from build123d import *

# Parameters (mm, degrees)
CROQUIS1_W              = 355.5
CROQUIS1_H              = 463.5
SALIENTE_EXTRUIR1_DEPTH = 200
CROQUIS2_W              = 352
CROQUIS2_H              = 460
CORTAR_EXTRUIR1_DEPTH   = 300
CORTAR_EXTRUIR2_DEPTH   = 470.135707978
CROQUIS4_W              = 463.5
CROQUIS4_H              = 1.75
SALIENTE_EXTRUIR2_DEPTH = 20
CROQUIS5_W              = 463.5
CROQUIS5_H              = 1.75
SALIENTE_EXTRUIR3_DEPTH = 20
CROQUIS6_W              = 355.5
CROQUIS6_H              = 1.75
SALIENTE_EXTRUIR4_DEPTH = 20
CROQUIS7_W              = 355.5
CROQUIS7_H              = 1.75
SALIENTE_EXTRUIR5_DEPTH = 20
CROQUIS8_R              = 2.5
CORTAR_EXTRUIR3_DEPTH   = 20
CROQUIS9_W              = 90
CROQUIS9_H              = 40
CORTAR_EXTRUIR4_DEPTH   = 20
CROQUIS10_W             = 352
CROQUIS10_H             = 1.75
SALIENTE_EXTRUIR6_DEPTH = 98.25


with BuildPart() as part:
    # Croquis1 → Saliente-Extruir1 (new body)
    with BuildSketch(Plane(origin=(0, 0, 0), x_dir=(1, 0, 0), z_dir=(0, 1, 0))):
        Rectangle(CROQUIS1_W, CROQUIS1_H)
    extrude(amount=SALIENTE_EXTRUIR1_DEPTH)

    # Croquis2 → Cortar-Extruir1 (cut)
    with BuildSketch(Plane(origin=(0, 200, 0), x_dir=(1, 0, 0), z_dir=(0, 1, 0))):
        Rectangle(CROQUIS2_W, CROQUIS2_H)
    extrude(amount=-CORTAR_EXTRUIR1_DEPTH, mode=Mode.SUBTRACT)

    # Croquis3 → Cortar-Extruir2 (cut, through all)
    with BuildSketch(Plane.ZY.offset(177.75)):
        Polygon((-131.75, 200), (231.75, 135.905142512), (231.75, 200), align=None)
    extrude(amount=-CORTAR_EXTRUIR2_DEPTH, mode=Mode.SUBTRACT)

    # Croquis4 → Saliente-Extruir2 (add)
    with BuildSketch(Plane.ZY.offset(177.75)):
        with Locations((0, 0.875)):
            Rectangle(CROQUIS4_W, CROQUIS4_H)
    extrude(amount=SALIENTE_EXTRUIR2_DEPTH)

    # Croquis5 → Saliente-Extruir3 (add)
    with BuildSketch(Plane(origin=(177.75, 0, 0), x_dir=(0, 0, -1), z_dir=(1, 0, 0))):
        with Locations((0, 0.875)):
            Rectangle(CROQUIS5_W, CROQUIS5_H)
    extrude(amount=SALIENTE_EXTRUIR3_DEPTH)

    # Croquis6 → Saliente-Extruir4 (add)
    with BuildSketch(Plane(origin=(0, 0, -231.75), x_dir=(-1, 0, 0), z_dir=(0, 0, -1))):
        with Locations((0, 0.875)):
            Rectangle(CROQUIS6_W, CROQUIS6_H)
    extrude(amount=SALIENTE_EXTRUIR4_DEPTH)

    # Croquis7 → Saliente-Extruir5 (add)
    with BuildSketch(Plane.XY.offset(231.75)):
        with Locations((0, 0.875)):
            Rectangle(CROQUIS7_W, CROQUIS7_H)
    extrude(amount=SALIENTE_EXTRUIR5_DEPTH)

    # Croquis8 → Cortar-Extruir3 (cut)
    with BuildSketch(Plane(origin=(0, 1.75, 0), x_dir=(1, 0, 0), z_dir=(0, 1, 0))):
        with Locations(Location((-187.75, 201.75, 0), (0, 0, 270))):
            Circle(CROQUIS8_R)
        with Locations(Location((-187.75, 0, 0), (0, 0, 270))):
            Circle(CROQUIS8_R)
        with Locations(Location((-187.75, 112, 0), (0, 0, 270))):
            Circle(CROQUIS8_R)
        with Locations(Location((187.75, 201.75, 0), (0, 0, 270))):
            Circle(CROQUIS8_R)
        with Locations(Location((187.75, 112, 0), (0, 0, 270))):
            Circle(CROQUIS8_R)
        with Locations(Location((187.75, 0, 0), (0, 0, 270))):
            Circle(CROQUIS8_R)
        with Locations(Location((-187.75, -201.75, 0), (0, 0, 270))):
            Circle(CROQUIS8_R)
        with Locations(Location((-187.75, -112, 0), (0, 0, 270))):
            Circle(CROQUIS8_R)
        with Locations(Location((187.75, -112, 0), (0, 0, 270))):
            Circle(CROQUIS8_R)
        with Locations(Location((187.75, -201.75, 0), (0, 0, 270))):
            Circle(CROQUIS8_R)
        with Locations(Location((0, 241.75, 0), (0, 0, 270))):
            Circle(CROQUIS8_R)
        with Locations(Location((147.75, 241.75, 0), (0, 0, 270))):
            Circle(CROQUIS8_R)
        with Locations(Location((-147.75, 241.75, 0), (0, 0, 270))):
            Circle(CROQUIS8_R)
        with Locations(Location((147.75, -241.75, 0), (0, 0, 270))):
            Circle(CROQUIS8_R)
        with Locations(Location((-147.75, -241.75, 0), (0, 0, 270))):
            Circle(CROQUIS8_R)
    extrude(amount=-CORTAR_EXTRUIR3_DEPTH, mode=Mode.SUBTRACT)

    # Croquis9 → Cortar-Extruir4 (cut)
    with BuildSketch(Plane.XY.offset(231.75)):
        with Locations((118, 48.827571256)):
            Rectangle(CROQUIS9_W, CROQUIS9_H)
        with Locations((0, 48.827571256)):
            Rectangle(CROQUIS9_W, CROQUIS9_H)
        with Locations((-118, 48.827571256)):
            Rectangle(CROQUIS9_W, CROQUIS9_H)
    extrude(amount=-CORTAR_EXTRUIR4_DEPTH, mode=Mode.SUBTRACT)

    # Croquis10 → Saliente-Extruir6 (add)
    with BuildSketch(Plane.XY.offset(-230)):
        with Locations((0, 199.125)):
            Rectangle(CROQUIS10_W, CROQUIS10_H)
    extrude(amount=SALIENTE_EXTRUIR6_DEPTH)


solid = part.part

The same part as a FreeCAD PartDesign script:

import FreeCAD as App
import Part
import Sketcher
Q = App.Units.Quantity


def add_polygon(sketch, points):
    """Adds a closed chain of lines whose ends are joined by coincident constraints."""
    first, n = sketch.GeometryCount, len(points)
    for a, b in zip(points, points[1:] + points[:1]):
        sketch.addGeometry(Part.LineSegment(App.Vector(*a, 0), App.Vector(*b, 0)), False)
    for i in range(n):
        sketch.addConstraint(Sketcher.Constraint("Coincident", first + i, 2, first + (i + 1) % n, 1))

doc = App.newDocument("Part")
body = doc.addObject("PartDesign::Body", "Body")

# Sketch on XZ plane
sketch1 = body.newObject("Sketcher::SketchObject", "Sketch")
sketch1.AttachmentSupport = (doc.getObject("XZ_Plane"), [""])
sketch1.MapMode = "FlatFace"
add_polygon(sketch1, [(-177.75, -231.75), (-177.75, 231.75), (177.75, 231.75), (177.75, -231.75)])  # lines 0-3
sketch1.addConstraint(Sketcher.Constraint("Vertical", 0))
sketch1.addConstraint(Sketcher.Constraint("Horizontal", 1))
sketch1.addConstraint(Sketcher.Constraint("Vertical", 2))
sketch1.addConstraint(Sketcher.Constraint("Horizontal", 3))
sketch1.addConstraint(Sketcher.Constraint("Symmetric", 0, 2, 2, 2, -1, 1))
sketch1.addConstraint(Sketcher.Constraint("DistanceX", 1, 1, 1, 2, 355.5))
sketch1.addConstraint(Sketcher.Constraint("DistanceY", 0, 1, 0, 2, 463.5))
pad1 = body.newObject("PartDesign::Pad", "Pad")
pad1.Profile = sketch1
pad1.Length = 200
pad1.Reversed = True

# Sketch on XZ plane
sketch2 = body.newObject("Sketcher::SketchObject", "Sketch001")
sketch2.AttachmentSupport = (doc.getObject("XZ_Plane"), [""])
sketch2.MapMode = "FlatFace"
sketch2.AttachmentOffset = App.Placement(App.Vector(0, 0, -200), App.Rotation())
add_polygon(sketch2, [(-176, -230), (-176, 230), (176, 230), (176, -230)])  # lines 0-3
sketch2.addConstraint(Sketcher.Constraint("Vertical", 0))
sketch2.addConstraint(Sketcher.Constraint("Horizontal", 1))
sketch2.addConstraint(Sketcher.Constraint("Vertical", 2))
sketch2.addConstraint(Sketcher.Constraint("Horizontal", 3))
sketch2.addConstraint(Sketcher.Constraint("Symmetric", 0, 2, 2, 2, -1, 1))
sketch2.addConstraint(Sketcher.Constraint("DistanceX", 1, 1, 1, 2, 352.0))
sketch2.addConstraint(Sketcher.Constraint("DistanceY", 0, 1, 0, 2, 460.0))
pocket1 = body.newObject("PartDesign::Pocket", "Pocket")
pocket1.Profile = sketch2
pocket1.Length = 300
pocket1.Reversed = True

# Sketch on YZ plane
sketch3 = body.newObject("Sketcher::SketchObject", "Sketch002")
sketch3.AttachmentSupport = (doc.getObject("YZ_Plane"), [""])
sketch3.MapMode = "FlatFace"
sketch3.AttachmentOffset = App.Placement(App.Vector(0, 0, -177.75), App.Rotation())
add_polygon(sketch3, [(200, -131.75), (135.905143, 231.75), (200, 231.75)])  # lines 0-2
sketch3.addConstraint(Sketcher.Constraint("Horizontal", 1))
sketch3.addConstraint(Sketcher.Constraint("Vertical", 2))
sketch3.addConstraint(Sketcher.Constraint("Angle", 0, Q("100 deg")))
sketch3.addConstraint(Sketcher.Constraint("DistanceY", 2, 2, 2, 1, 363.5))
sketch3.addConstraint(Sketcher.Constraint("DistanceX", -1, 1, 1, 2, 200.0))
sketch3.addConstraint(Sketcher.Constraint("DistanceY", -1, 1, 0, 2, 231.75))
pocket2 = body.newObject("PartDesign::Pocket", "Pocket001")
pocket2.Profile = sketch3
pocket2.Type = "ThroughAll"
pocket2.Reversed = True

# Sketch on YZ plane
sketch4 = body.newObject("Sketcher::SketchObject", "Sketch003")
sketch4.AttachmentSupport = (doc.getObject("YZ_Plane"), [""])
sketch4.MapMode = "FlatFace"
sketch4.AttachmentOffset = App.Placement(App.Vector(0, 0, -177.75), App.Rotation())
add_polygon(sketch4, [(1.75, -231.75), (0, -231.75), (0, 231.75), (1.75, 231.75)])  # lines 0-3
sketch4.addConstraint(Sketcher.Constraint("Horizontal", 0))
sketch4.addConstraint(Sketcher.Constraint("Vertical", 1))
sketch4.addConstraint(Sketcher.Constraint("Horizontal", 2))
sketch4.addConstraint(Sketcher.Constraint("Vertical", 3))
sketch4.addConstraint(Sketcher.Constraint("Symmetric", 0, 2, 1, 2, -1, 1))
sketch4.addConstraint(Sketcher.Constraint("DistanceY", 1, 1, 1, 2, 463.5))
sketch4.addConstraint(Sketcher.Constraint("DistanceX", 0, 2, 0, 1, 1.75))
pad2 = body.newObject("PartDesign::Pad", "Pad001")
pad2.Profile = sketch4
pad2.Length = 20
pad2.Reversed = True

# Sketch on YZ plane
sketch5 = body.newObject("Sketcher::SketchObject", "Sketch004")
sketch5.AttachmentSupport = (doc.getObject("YZ_Plane"), [""])
sketch5.MapMode = "FlatFace"
sketch5.AttachmentOffset = App.Placement(App.Vector(0, 0, 177.75), App.Rotation())
add_polygon(sketch5, [(1.75, 231.75), (0, 231.75), (0, -231.75), (1.75, -231.75)])  # lines 0-3
sketch5.addConstraint(Sketcher.Constraint("Horizontal", 0))
sketch5.addConstraint(Sketcher.Constraint("Vertical", 1))
sketch5.addConstraint(Sketcher.Constraint("Horizontal", 2))
sketch5.addConstraint(Sketcher.Constraint("Vertical", 3))
sketch5.addConstraint(Sketcher.Constraint("Symmetric", 0, 2, 1, 2, -1, 1))
sketch5.addConstraint(Sketcher.Constraint("DistanceY", 1, 2, 1, 1, 463.5))
sketch5.addConstraint(Sketcher.Constraint("DistanceX", 0, 2, 0, 1, 1.75))
pad3 = body.newObject("PartDesign::Pad", "Pad002")
pad3.Profile = sketch5
pad3.Length = 20

# Sketch on XY plane
sketch6 = body.newObject("Sketcher::SketchObject", "Sketch005")
sketch6.AttachmentSupport = (doc.getObject("XY_Plane"), [""])
sketch6.MapMode = "FlatFace"
sketch6.AttachmentOffset = App.Placement(App.Vector(0, 0, -231.75), App.Rotation())
add_polygon(sketch6, [(177.75, 1.75), (177.75, 0), (-177.75, 0), (-177.75, 1.75)])  # lines 0-3
sketch6.addConstraint(Sketcher.Constraint("Vertical", 0))
sketch6.addConstraint(Sketcher.Constraint("Horizontal", 1))
sketch6.addConstraint(Sketcher.Constraint("Vertical", 2))
sketch6.addConstraint(Sketcher.Constraint("Horizontal", 3))
sketch6.addConstraint(Sketcher.Constraint("Symmetric", 0, 2, 1, 2, -1, 1))
sketch6.addConstraint(Sketcher.Constraint("DistanceX", 1, 2, 1, 1, 355.5))
sketch6.addConstraint(Sketcher.Constraint("DistanceY", 0, 2, 0, 1, 1.75))
pad4 = body.newObject("PartDesign::Pad", "Pad003")
pad4.Profile = sketch6
pad4.Length = 20
pad4.Reversed = True

# Sketch on XY plane
sketch7 = body.newObject("Sketcher::SketchObject", "Sketch006")
sketch7.AttachmentSupport = (doc.getObject("XY_Plane"), [""])
sketch7.MapMode = "FlatFace"
sketch7.AttachmentOffset = App.Placement(App.Vector(0, 0, 231.75), App.Rotation())
add_polygon(sketch7, [(-177.75, 1.75), (-177.75, 0), (177.75, 0), (177.75, 1.75)])  # lines 0-3
sketch7.addConstraint(Sketcher.Constraint("Vertical", 0))
sketch7.addConstraint(Sketcher.Constraint("Horizontal", 1))
sketch7.addConstraint(Sketcher.Constraint("Vertical", 2))
sketch7.addConstraint(Sketcher.Constraint("Horizontal", 3))
sketch7.addConstraint(Sketcher.Constraint("Symmetric", 0, 2, 1, 2, -1, 1))
sketch7.addConstraint(Sketcher.Constraint("DistanceX", 1, 1, 1, 2, 355.5))
sketch7.addConstraint(Sketcher.Constraint("DistanceY", 0, 2, 0, 1, 1.75))
pad5 = body.newObject("PartDesign::Pad", "Pad004")
pad5.Profile = sketch7
pad5.Length = 20

# Sketch on XZ plane
sketch8 = body.newObject("Sketcher::SketchObject", "Sketch007")
sketch8.AttachmentSupport = (doc.getObject("XZ_Plane"), [""])
sketch8.MapMode = "FlatFace"
sketch8.AttachmentOffset = App.Placement(App.Vector(0, 0, -1.75), App.Rotation())
sketch8.addGeometry(Part.Circle(App.Vector(-187.75, -201.75, 0), App.Vector(0, 0, 1), 2.5), False)
sketch8.addGeometry(Part.Circle(App.Vector(-187.75, 0, 0), App.Vector(0, 0, 1), 2.5), False)
sketch8.addGeometry(Part.Circle(App.Vector(-187.75, -112, 0), App.Vector(0, 0, 1), 2.5), False)
sketch8.addGeometry(Part.Circle(App.Vector(187.75, -201.75, 0), App.Vector(0, 0, 1), 2.5), False)
sketch8.addGeometry(Part.Circle(App.Vector(187.75, -112, 0), App.Vector(0, 0, 1), 2.5), False)
sketch8.addGeometry(Part.Circle(App.Vector(187.75, 0, 0), App.Vector(0, 0, 1), 2.5), False)
sketch8.addGeometry(Part.Circle(App.Vector(-187.75, 201.75, 0), App.Vector(0, 0, 1), 2.5), False)
sketch8.addGeometry(Part.Circle(App.Vector(-187.75, 112, 0), App.Vector(0, 0, 1), 2.5), False)
sketch8.addGeometry(Part.Circle(App.Vector(187.75, 112, 0), App.Vector(0, 0, 1), 2.5), False)
sketch8.addGeometry(Part.Circle(App.Vector(187.75, 201.75, 0), App.Vector(0, 0, 1), 2.5), False)
sketch8.addGeometry(Part.Circle(App.Vector(0, -241.75, 0), App.Vector(0, 0, 1), 2.5), False)
sketch8.addGeometry(Part.Circle(App.Vector(147.75, -241.75, 0), App.Vector(0, 0, 1), 2.5), False)
sketch8.addGeometry(Part.Circle(App.Vector(-147.75, -241.75, 0), App.Vector(0, 0, 1), 2.5), False)
sketch8.addGeometry(Part.Circle(App.Vector(147.75, 241.75, 0), App.Vector(0, 0, 1), 2.5), False)
sketch8.addGeometry(Part.Circle(App.Vector(-147.75, 241.75, 0), App.Vector(0, 0, 1), 2.5), False)
sketch8.addConstraint(Sketcher.Constraint("Equal", 0, 1))
sketch8.addConstraint(Sketcher.Constraint("Equal", 1, 2))
sketch8.addConstraint(Sketcher.Constraint("Equal", 2, 3))
sketch8.addConstraint(Sketcher.Constraint("Equal", 3, 4))
sketch8.addConstraint(Sketcher.Constraint("Equal", 4, 5))
sketch8.addConstraint(Sketcher.Constraint("Equal", 5, 6))
sketch8.addConstraint(Sketcher.Constraint("Equal", 6, 7))
sketch8.addConstraint(Sketcher.Constraint("Equal", 7, 8))
sketch8.addConstraint(Sketcher.Constraint("Equal", 8, 9))
sketch8.addConstraint(Sketcher.Constraint("Equal", 9, 10))
sketch8.addConstraint(Sketcher.Constraint("Equal", 10, 11))
sketch8.addConstraint(Sketcher.Constraint("Equal", 11, 12))
sketch8.addConstraint(Sketcher.Constraint("Equal", 12, 13))
sketch8.addConstraint(Sketcher.Constraint("Equal", 13, 14))
sketch8.addConstraint(Sketcher.Constraint("Symmetric", 1, 3, 5, 3, -1, 1))
sketch8.addConstraint(Sketcher.Constraint("Symmetric", 3, 3, 6, 3, -1, 1))
sketch8.addConstraint(Sketcher.Constraint("Symmetric", 4, 3, 7, 3, -1, 1))
sketch8.addConstraint(Sketcher.Constraint("Symmetric", 2, 3, 8, 3, -1, 1))
sketch8.addConstraint(Sketcher.Constraint("Symmetric", 0, 3, 9, 3, -1, 1))
sketch8.addConstraint(Sketcher.Constraint("Symmetric", 12, 3, 13, 3, -1, 1))
sketch8.addConstraint(Sketcher.Constraint("Symmetric", 11, 3, 14, 3, -1, 1))
sketch8.addConstraint(Sketcher.Constraint("Symmetric", 0, 3, 3, 3, -2))
sketch8.addConstraint(Sketcher.Constraint("Symmetric", 2, 3, 4, 3, -2))
sketch8.addConstraint(Sketcher.Constraint("Symmetric", 11, 3, 12, 3, -2))
sketch8.addConstraint(Sketcher.Constraint("PointOnObject", 1, 3, -1))
sketch8.addConstraint(Sketcher.Constraint("PointOnObject", 10, 3, -2))
sketch8.addConstraint(Sketcher.Constraint("Horizontal", 10, 3, 11, 3))
sketch8.addConstraint(Sketcher.Constraint("Vertical", 0, 3, 1, 3))
sketch8.addConstraint(Sketcher.Constraint("Vertical", 1, 3, 2, 3))
sketch8.addConstraint(Sketcher.Constraint("Diameter", 0, 5.0))
sketch8.addConstraint(Sketcher.Constraint("DistanceY", 2, 3, -1, 1, 112.0))
sketch8.addConstraint(Sketcher.Constraint("DistanceY", 10, 3, 0, 3, 40.0))
sketch8.addConstraint(Sketcher.Constraint("DistanceX", 11, 3, 3, 3, 40.0))
sketch8.addConstraint(Sketcher.Constraint("DistanceX", 0, 3, 3, 3, 375.5))
sketch8.addConstraint(Sketcher.Constraint("DistanceY", 0, 3, 6, 3, 403.5))
pocket3 = body.newObject("PartDesign::Pocket", "Pocket002")
pocket3.Profile = sketch8
pocket3.Length = 20
pocket3.Reversed = True

# Sketch on XY plane
sketch9 = body.newObject("Sketcher::SketchObject", "Sketch008")
sketch9.AttachmentSupport = (doc.getObject("XY_Plane"), [""])
sketch9.MapMode = "FlatFace"
sketch9.AttachmentOffset = App.Placement(App.Vector(0, 0, 231.75), App.Rotation())
add_polygon(sketch9, [(73, 68.827571), (73, 28.827571), (163, 28.827571), (163, 68.827571)])  # lines 0-3
add_polygon(sketch9, [(-45, 68.827571), (-45, 28.827571), (45, 28.827571), (45, 68.827571)])  # lines 4-7
add_polygon(sketch9, [(-163, 68.827571), (-163, 28.827571), (-73, 28.827571), (-73, 68.827571)])  # lines 8-11
sketch9.addConstraint(Sketcher.Constraint("Vertical", 0))
sketch9.addConstraint(Sketcher.Constraint("Horizontal", 1))
sketch9.addConstraint(Sketcher.Constraint("Vertical", 2))
sketch9.addConstraint(Sketcher.Constraint("Horizontal", 3))
sketch9.addConstraint(Sketcher.Constraint("Vertical", 4))
sketch9.addConstraint(Sketcher.Constraint("Horizontal", 5))
sketch9.addConstraint(Sketcher.Constraint("Vertical", 6))
sketch9.addConstraint(Sketcher.Constraint("Horizontal", 7))
sketch9.addConstraint(Sketcher.Constraint("Vertical", 8))
sketch9.addConstraint(Sketcher.Constraint("Horizontal", 9))
sketch9.addConstraint(Sketcher.Constraint("Vertical", 10))
sketch9.addConstraint(Sketcher.Constraint("Horizontal", 11))
sketch9.addConstraint(Sketcher.Constraint("Symmetric", 1, 2, 8, 2, -2))
sketch9.addConstraint(Sketcher.Constraint("Symmetric", 3, 2, 10, 2, -2))
sketch9.addConstraint(Sketcher.Constraint("Horizontal", 1, 2, 4, 2))
sketch9.addConstraint(Sketcher.Constraint("Horizontal", 3, 2, 6, 2))
sketch9.addConstraint(Sketcher.Constraint("Equal", 3, 5))
sketch9.addConstraint(Sketcher.Constraint("DistanceX", 1, 1, 1, 2, 90.0))
sketch9.addConstraint(Sketcher.Constraint("DistanceY", 0, 2, 0, 1, 40.0))
sketch9.addConstraint(Sketcher.Constraint("DistanceX", -1, 1, 0, 2, 73.0))
sketch9.addConstraint(Sketcher.Constraint("DistanceX", 4, 2, -1, 1, 45.0))
sketch9.addConstraint(Sketcher.Constraint("DistanceY", -1, 1, 0, 2, 28.827571))
pocket4 = body.newObject("PartDesign::Pocket", "Pocket003")
pocket4.Profile = sketch9
pocket4.Length = 20

# Sketch on XY plane
sketch10 = body.newObject("Sketcher::SketchObject", "Sketch009")
sketch10.AttachmentSupport = (doc.getObject("XY_Plane"), [""])
sketch10.MapMode = "FlatFace"
sketch10.AttachmentOffset = App.Placement(App.Vector(0, 0, -230), App.Rotation())
add_polygon(sketch10, [(-176, 200), (-176, 198.25), (176, 198.25), (176, 200)])  # lines 0-3
sketch10.addConstraint(Sketcher.Constraint("Vertical", 0))
sketch10.addConstraint(Sketcher.Constraint("Horizontal", 1))
sketch10.addConstraint(Sketcher.Constraint("Vertical", 2))
sketch10.addConstraint(Sketcher.Constraint("Horizontal", 3))
sketch10.addConstraint(Sketcher.Constraint("DistanceX", 1, 1, 1, 2, 352.0))
sketch10.addConstraint(Sketcher.Constraint("DistanceX", 0, 2, -1, 1, 176.0))
sketch10.addConstraint(Sketcher.Constraint("DistanceY", -1, 1, 2, 2, 200.0))
sketch10.addConstraint(Sketcher.Constraint("DistanceY", 0, 2, 0, 1, 1.75))
pad6 = body.newObject("PartDesign::Pad", "Pad005")
pad6.Profile = sketch10
pad6.Length = 98.25

doc.recompute()
